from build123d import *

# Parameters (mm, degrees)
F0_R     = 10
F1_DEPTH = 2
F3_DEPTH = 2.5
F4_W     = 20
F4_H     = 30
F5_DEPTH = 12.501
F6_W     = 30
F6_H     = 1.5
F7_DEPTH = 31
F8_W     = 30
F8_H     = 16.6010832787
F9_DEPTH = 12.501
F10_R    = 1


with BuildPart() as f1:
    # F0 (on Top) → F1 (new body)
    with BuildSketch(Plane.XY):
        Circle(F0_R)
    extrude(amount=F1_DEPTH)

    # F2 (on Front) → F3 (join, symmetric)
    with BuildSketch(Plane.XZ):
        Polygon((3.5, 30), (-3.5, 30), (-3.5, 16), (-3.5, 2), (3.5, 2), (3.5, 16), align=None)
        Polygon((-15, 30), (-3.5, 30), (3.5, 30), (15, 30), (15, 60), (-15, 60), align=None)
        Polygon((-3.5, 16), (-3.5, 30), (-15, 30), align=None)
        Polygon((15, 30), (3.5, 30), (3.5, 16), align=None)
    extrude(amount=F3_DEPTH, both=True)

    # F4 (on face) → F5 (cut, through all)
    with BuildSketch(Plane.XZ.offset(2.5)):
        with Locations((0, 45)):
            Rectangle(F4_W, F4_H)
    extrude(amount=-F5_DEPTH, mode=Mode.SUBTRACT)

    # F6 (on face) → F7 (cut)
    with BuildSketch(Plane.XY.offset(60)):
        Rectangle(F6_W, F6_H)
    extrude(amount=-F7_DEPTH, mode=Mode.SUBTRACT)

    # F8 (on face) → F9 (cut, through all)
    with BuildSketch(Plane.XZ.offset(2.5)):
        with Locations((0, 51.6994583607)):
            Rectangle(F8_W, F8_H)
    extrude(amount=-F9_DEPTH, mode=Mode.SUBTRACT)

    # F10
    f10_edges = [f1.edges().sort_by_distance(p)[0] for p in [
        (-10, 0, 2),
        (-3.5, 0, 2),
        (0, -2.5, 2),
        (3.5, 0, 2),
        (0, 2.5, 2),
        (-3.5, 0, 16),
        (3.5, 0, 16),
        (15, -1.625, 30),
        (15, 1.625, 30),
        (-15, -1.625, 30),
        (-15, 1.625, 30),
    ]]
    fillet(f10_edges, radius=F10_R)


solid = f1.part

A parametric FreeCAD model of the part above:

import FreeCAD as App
import Part
import Sketcher

V = App.Vector
Q = App.Units.Quantity


def edges_at(feature, points):
    """Names of the edges that pass closest to the given points."""
    edges = feature.Shape.Edges
    near = lambda p: min(range(len(edges)), key=lambda i: edges[i].distToShape(Part.Vertex(*p))[0])
    return sorted({f"Edge{near(p) + 1}" for p in points})

doc = App.newDocument("Part")
params = doc.addObject("Spreadsheet::Sheet", "Params")
for row, (alias, value) in enumerate([
    ("sketch1_diameter", "20 mm"),
    ("pad1_length", "2 mm"),
    ("sketch2_width", "7 mm"),
    ("sketch2_width2", "30 mm"),
    ("sketch2_height", "14 mm"),
    ("pad2_length", "5 mm"),
    ("sketch3_width", "20 mm"),
    ("sketch3_height", "30 mm"),
    ("sketch4_width", "30 mm"),
    ("sketch4_height", "1.5 mm"),
    ("pocket2_length", "31 mm"),
    ("sketch5_width", "30 mm"),
    ("fillet_radius", "1 mm"),
], start=1):
    params.set(f"A{row}", alias)
    params.set(f"B{row}", "=" + value)
    params.setAlias(f"B{row}", alias)

body = doc.addObject("PartDesign::Body", "Body")

# Sketch on XY plane
sketch1 = body.newObject("Sketcher::SketchObject", "Sketch")
sketch1.AttachmentSupport = (doc.getObject("XY_Plane"), [""])
sketch1.MapMode = "FlatFace"
sketch1.addGeometry(Part.Circle(V(0, 0, 0), V(0, 0, 1), 10), False)
sketch1.addConstraint(Sketcher.Constraint("Coincident", 0, 3, -1, 1))
sketch1.addConstraint(Sketcher.Constraint("Diameter", 0, Q("20 mm")))
sketch1.setExpression("Constraints[1]", "Params.sketch1_diameter")
pad1 = body.newObject("PartDesign::Pad", "Pad")
pad1.Profile = sketch1
pad1.setExpression("Length", "Params.pad1_length")

# Sketch on XZ plane
sketch2 = body.newObject("Sketcher::SketchObject", "Sketch001")
sketch2.AttachmentSupport = (doc.getObject("XZ_Plane"), [""])
sketch2.MapMode = "FlatFace"
sketch2.addGeometry(Part.LineSegment(V(-4, 16, 0), V(-4, 2, 0)), False)
sketch2.addGeometry(Part.LineSegment(V(-4, 2, 0), V(4, 2, 0)), False)
sketch2.addGeometry(Part.LineSegment(V(4, 2, 0), V(4, 16, 0)), False)
sketch2.addGeometry(Part.LineSegment(V(4, 16, 0), V(15, 30, 0)), False)
sketch2.addGeometry(Part.LineSegment(V(15, 30, 0), V(15, 60, 0)), False)
sketch2.addGeometry(Part.LineSegment(V(15, 60, 0), V(-15, 60, 0)), False)
sketch2.addGeometry(Part.LineSegment(V(-15, 60, 0), V(-15, 30, 0)), False)
sketch2.addGeometry(Part.LineSegment(V(-15, 30, 0), V(-4, 16, 0)), False)
sketch2.addConstraint(Sketcher.Constraint("Coincident", 0, 2, 1, 1))
sketch2.addConstraint(Sketcher.Constraint("Coincident", 1, 2, 2, 1))
sketch2.addConstraint(Sketcher.Constraint("Coincident", 2, 2, 3, 1))
sketch2.addConstraint(Sketcher.Constraint("Coincident", 3, 2, 4, 1))
sketch2.addConstraint(Sketcher.Constraint("Coincident", 4, 2, 5, 1))
sketch2.addConstraint(Sketcher.Constraint("Coincident", 5, 2, 6, 1))
sketch2.addConstraint(Sketcher.Constraint("Coincident", 6, 2, 7, 1))
sketch2.addConstraint(Sketcher.Constraint("Coincident", 7, 2, 0, 1))
sketch2.addConstraint(Sketcher.Constraint("Vertical", 0))
sketch2.addConstraint(Sketcher.Constraint("Horizontal", 1))
sketch2.addConstraint(Sketcher.Constraint("Vertical", 2))
sketch2.addConstraint(Sketcher.Constraint("Vertical", 4))
sketch2.addConstraint(Sketcher.Constraint("Horizontal", 5))
sketch2.addConstraint(Sketcher.Constraint("Vertical", 6))
sketch2.addConstraint(Sketcher.Constraint("Symmetric", 3, 2, 6, 2, -2))
sketch2.addConstraint(Sketcher.Constraint("Symmetric", 2, 2, 7, 2, -2))
sketch2.addConstraint(Sketcher.Constraint("Equal", 5, 4))
sketch2.addConstraint(Sketcher.Constraint("DistanceX", 1, 1, 1, 2, Q("7 mm")))
sketch2.addConstraint(Sketcher.Constraint("DistanceX", 5, 2, 5, 1, Q("30 mm")))
sketch2.addConstraint(Sketcher.Constraint("DistanceY", 0, 2, 0, 1, Q("14 mm")))
sketch2.addConstraint(Sketcher.Constraint("DistanceY", -1, 1, 0, 2, Q("2 mm")))
sketch2.addConstraint(Sketcher.Constraint("DistanceY", -1, 1, 3, 2, Q("30 mm")))
sketch2.setExpression("Constraints[17]", "Params.sketch2_width")
sketch2.setExpression("Constraints[18]", "Params.sketch2_width2")
sketch2.setExpression("Constraints[19]", "Params.sketch2_height")
pad2 = body.newObject("PartDesign::Pad", "Pad001")
pad2.Profile = sketch2
pad2.setExpression("Length", "Params.pad2_length")
pad2.Midplane = True

# Sketch on XZ plane
sketch3 = body.newObject("Sketcher::SketchObject", "Sketch002")
sketch3.AttachmentSupport = (doc.getObject("XZ_Plane"), [""])
sketch3.MapMode = "FlatFace"
sketch3.AttachmentOffset = App.Placement(V(0, 0, 2.5), App.Rotation())
sketch3.addGeometry(Part.LineSegment(V(-10, 60, 0), V(-10, 30, 0)), False)
sketch3.addGeometry(Part.LineSegment(V(-10, 30, 0), V(10, 30, 0)), False)
sketch3.addGeometry(Part.LineSegment(V(10, 30, 0), V(10, 60, 0)), False)
sketch3.addGeometry(Part.LineSegment(V(10, 60, 0), V(-10, 60, 0)), False)
sketch3.addConstraint(Sketcher.Constraint("Coincident", 0, 2, 1, 1))
sketch3.addConstraint(Sketcher.Constraint("Coincident", 1, 2, 2, 1))
sketch3.addConstraint(Sketcher.Constraint("Coincident", 2, 2, 3, 1))
sketch3.addConstraint(Sketcher.Constraint("Coincident", 3, 2, 0, 1))
sketch3.addConstraint(Sketcher.Constraint("Vertical", 0))
sketch3.addConstraint(Sketcher.Constraint("Horizontal", 1))
sketch3.addConstraint(Sketcher.Constraint("Vertical", 2))
sketch3.addConstraint(Sketcher.Constraint("Horizontal", 3))
sketch3.addConstraint(Sketcher.Constraint("DistanceX", 1, 1, 1, 2, Q("20 mm")))
sketch3.addConstraint(Sketcher.Constraint("DistanceY", 0, 2, 0, 1, Q("30 mm")))
sketch3.addConstraint(Sketcher.Constraint("DistanceX", 0, 2, -1, 1, Q("10 mm")))
sketch3.addConstraint(Sketcher.Constraint("DistanceY", -1, 1, 0, 2, Q("30 mm")))
sketch3.setExpression("Constraints[8]", "Params.sketch3_width")
sketch3.setExpression("Constraints[9]", "Params.sketch3_height")
pocket1 = body.newObject("PartDesign::Pocket", "Pocket")
pocket1.Profile = sketch3
pocket1.Type = "ThroughAll"

# Sketch on XY plane
sketch4 = body.newObject("Sketcher::SketchObject", "Sketch003")
sketch4.AttachmentSupport = (doc.getObject("XY_Plane"), [""])
sketch4.MapMode = "FlatFace"
sketch4.AttachmentOffset = App.Placement(V(0, 0, 60), App.Rotation())
sketch4.addGeometry(Part.LineSegment(V(-15, 0.8, 0), V(-15, -0.8, 0)), False)
sketch4.addGeometry(Part.LineSegment(V(-15, -0.8, 0), V(15, -0.8, 0)), False)
sketch4.addGeometry(Part.LineSegment(V(15, -0.8, 0), V(15, 0.8, 0)), False)
sketch4.addGeometry(Part.LineSegment(V(15, 0.8, 0), V(-15, 0.8, 0)), False)
sketch4.addConstraint(Sketcher.Constraint("Coincident", 0, 2, 1, 1))
sketch4.addConstraint(Sketcher.Constraint("Coincident", 1, 2, 2, 1))
sketch4.addConstraint(Sketcher.Constraint("Coincident", 2, 2, 3, 1))
sketch4.addConstraint(Sketcher.Constraint("Coincident", 3, 2, 0, 1))
sketch4.addConstraint(Sketcher.Constraint("Vertical", 0))
sketch4.addConstraint(Sketcher.Constraint("Horizontal", 1))
sketch4.addConstraint(Sketcher.Constraint("Vertical", 2))
sketch4.addConstraint(Sketcher.Constraint("Horizontal", 3))
sketch4.addConstraint(Sketcher.Constraint("Symmetric", 0, 2, 2, 2, -1, 1))
sketch4.addConstraint(Sketcher.Constraint("DistanceX", 1, 1, 1, 2, Q("30 mm")))
sketch4.addConstraint(Sketcher.Constraint("DistanceY", 0, 2, 0, 1, Q("1.5 mm")))
sketch4.setExpression("Constraints[9]", "Params.sketch4_width")
sketch4.setExpression("Constraints[10]", "Params.sketch4_height")
pocket2 = body.newObject("PartDesign::Pocket", "Pocket001")
pocket2.Profile = sketch4
pocket2.setExpression("Length", "Params.pocket2_length")

# Sketch on XZ plane
sketch5 = body.newObject("Sketcher::SketchObject", "Sketch004")
sketch5.AttachmentSupport = (doc.getObject("XZ_Plane"), [""])
sketch5.MapMode = "FlatFace"
sketch5.AttachmentOffset = App.Placement(V(0, 0, 2.5), App.Rotation())
sketch5.addGeometry(Part.LineSegment(V(-15, 60, 0), V(-15, 43, 0)), False)
sketch5.addGeometry(Part.LineSegment(V(-15, 43, 0), V(15, 43, 0)), False)
sketch5.addGeometry(Part.LineSegment(V(15, 43, 0), V(15, 60, 0)), False)
sketch5.addGeometry(Part.LineSegment(V(15, 60, 0), V(-15, 60, 0)), False)
sketch5.addConstraint(Sketcher.Constraint("Coincident", 0, 2, 1, 1))
sketch5.addConstraint(Sketcher.Constraint("Coincident", 1, 2, 2, 1))
sketch5.addConstraint(Sketcher.Constraint("Coincident", 2, 2, 3, 1))
sketch5.addConstraint(Sketcher.Constraint("Coincident", 3, 2, 0, 1))
sketch5.addConstraint(Sketcher.Constraint("Vertical", 0))
sketch5.addConstraint(Sketcher.Constraint("Horizontal", 1))
sketch5.addConstraint(Sketcher.Constraint("Vertical", 2))
sketch5.addConstraint(Sketcher.Constraint("Horizontal", 3))
sketch5.addConstraint(Sketcher.Constraint("DistanceX", 1, 1, 1, 2, Q("30 mm")))
sketch5.addConstraint(Sketcher.Constraint("DistanceX", 0, 2, -1, 1, Q("15 mm")))
sketch5.addConstraint(Sketcher.Constraint("DistanceY", -1, 1, 2, 2, Q("60 mm")))
sketch5.addConstraint(Sketcher.Constraint("DistanceY", 0, 2, 0, 1, Q("16.601083 mm")))
sketch5.setExpression("Constraints[8]", "Params.sketch5_width")
pocket3 = body.newObject("PartDesign::Pocket", "Pocket002")
pocket3.Profile = sketch5
pocket3.Type = "ThroughAll"
doc.recompute()

fillet = body.newObject("PartDesign::Fillet", "Fillet")
fillet.Base = (pocket3, edges_at(pocket3, [
    (-10, 0, 2),
    (-3.5, 0, 2),
    (0, -2.5, 2),
    (3.5, 0, 2),
    (0, 2.5, 2),
    (-3.5, 0, 16),
    (3.5, 0, 16),
    (15, -1.625, 30),
    (15, 1.625, 30),
    (-15, -1.625, 30),
    (-15, 1.625, 30),
]))
fillet.setExpression("Radius", "Params.fillet_radius")

doc.recompute()
